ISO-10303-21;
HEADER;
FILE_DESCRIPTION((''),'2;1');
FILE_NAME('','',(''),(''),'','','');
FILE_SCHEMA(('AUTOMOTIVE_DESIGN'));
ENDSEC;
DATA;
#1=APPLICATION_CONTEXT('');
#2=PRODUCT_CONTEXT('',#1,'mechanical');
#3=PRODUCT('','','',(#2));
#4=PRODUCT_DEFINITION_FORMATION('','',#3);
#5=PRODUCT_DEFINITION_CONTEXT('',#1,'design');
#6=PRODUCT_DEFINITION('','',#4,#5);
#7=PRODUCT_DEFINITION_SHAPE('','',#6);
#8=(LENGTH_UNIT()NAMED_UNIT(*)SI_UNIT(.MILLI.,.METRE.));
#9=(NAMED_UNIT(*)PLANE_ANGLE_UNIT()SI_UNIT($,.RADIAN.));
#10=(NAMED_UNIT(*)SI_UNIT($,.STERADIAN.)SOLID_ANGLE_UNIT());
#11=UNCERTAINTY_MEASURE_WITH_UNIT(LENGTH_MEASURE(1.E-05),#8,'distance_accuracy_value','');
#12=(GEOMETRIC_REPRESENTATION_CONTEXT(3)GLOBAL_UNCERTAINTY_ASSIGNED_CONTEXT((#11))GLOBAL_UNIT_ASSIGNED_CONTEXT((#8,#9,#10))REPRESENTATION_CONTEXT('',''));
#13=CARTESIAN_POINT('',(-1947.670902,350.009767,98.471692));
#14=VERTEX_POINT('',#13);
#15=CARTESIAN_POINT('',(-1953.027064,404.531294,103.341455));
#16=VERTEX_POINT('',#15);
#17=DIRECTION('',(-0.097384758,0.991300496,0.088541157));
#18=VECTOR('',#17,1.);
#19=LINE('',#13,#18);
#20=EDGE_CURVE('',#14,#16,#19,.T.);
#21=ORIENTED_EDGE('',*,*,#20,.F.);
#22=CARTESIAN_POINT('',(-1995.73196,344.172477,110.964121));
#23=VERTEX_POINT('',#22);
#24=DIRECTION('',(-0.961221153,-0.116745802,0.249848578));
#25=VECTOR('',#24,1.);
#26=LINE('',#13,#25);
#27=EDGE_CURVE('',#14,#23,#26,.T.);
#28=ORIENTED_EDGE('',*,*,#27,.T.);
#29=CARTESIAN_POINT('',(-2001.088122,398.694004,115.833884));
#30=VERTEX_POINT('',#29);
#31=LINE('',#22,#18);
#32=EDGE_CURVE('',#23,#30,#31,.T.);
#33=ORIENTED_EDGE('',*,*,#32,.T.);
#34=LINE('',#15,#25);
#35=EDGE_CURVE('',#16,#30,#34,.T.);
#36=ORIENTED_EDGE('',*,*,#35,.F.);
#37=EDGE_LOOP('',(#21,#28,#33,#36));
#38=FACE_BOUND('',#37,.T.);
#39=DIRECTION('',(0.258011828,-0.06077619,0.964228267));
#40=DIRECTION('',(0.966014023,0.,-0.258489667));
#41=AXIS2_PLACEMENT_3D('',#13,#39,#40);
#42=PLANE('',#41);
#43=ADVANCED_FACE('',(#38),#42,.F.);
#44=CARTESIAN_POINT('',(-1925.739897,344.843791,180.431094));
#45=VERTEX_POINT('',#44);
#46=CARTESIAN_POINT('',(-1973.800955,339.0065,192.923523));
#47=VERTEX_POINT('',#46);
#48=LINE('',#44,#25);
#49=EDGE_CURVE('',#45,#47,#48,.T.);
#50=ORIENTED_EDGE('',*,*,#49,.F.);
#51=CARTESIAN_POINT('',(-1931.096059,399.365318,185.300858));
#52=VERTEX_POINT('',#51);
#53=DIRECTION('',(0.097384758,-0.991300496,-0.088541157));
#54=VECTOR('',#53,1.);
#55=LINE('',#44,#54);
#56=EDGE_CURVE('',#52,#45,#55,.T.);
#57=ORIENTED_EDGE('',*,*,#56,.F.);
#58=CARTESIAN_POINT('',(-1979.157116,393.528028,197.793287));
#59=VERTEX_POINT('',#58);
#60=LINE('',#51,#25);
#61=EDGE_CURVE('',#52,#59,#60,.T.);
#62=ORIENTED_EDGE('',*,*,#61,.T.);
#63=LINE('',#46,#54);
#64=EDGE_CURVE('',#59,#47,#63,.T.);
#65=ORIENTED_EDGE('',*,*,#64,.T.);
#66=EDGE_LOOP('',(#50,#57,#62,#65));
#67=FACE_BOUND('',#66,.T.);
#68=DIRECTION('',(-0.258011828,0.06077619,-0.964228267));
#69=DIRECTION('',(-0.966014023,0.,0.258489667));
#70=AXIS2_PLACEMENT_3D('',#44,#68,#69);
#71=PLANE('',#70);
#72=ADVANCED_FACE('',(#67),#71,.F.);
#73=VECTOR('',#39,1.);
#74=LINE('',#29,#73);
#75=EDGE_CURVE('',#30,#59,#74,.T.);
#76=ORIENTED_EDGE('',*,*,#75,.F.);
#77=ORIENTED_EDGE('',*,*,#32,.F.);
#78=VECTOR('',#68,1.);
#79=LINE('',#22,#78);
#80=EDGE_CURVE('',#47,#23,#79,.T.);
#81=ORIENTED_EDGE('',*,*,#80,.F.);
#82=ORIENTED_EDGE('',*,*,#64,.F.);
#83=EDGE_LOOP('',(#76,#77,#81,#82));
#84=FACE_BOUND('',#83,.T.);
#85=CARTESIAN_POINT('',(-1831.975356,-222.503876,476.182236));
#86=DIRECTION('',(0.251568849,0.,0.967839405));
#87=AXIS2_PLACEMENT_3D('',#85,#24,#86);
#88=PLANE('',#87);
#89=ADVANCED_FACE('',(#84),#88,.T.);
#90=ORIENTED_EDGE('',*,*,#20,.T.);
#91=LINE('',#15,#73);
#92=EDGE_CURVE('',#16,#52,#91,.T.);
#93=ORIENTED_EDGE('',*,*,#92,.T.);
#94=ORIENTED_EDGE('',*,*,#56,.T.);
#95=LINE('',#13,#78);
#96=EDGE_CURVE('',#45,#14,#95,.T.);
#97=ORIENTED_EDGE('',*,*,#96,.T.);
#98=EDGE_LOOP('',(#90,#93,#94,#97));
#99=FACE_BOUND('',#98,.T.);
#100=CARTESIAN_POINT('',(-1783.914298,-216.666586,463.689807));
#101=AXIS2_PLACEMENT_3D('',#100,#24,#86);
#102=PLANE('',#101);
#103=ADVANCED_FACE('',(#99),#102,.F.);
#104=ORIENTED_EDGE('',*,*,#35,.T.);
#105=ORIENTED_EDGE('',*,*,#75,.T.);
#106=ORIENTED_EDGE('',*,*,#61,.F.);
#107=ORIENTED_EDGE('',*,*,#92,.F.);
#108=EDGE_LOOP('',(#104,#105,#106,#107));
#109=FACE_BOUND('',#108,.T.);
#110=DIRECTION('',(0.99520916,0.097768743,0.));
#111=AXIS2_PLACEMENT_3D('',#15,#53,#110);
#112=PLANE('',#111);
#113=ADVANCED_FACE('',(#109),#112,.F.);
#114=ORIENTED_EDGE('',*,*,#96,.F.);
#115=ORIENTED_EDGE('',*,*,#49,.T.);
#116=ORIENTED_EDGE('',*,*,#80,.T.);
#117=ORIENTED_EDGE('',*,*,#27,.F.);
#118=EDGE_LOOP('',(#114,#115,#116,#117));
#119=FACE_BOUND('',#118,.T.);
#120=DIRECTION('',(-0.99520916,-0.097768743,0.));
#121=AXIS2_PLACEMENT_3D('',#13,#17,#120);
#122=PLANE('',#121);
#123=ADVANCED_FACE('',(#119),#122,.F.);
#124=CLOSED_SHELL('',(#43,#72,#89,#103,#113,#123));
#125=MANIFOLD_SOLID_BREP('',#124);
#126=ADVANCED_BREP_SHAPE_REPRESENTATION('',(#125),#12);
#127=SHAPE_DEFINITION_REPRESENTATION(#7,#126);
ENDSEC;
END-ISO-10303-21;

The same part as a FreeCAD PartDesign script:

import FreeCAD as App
import Part
import Sketcher

V = App.Vector


def add_polygon(sketch, points):
    """Adds a closed chain of lines whose ends are joined by coincident constraints."""
    first, n = sketch.GeometryCount, len(points)
    for a, b in zip(points, points[1:] + points[:1]):
        sketch.addGeometry(Part.LineSegment(App.Vector(*a, 0), App.Vector(*b, 0)), False)
    for i in range(n):
        sketch.addConstraint(Sketcher.Constraint("Coincident", first + i, 2, first + (i + 1) % n, 1))

doc = App.newDocument("Part")
body = doc.addObject("PartDesign::Body", "Body")

# Sketch on an angled plane
sketch1 = body.newObject("Sketcher::SketchObject", "Sketch")
sketch1.Placement = App.Placement(V(-1970.034425, 250.688482, 166.146145), App.Rotation(V(0.097384758, -0.991300496, -0.088541157), V(-0.258011828, 0.06077619, -0.964228267), V(0.961221153, 0.116745802, -0.249848578), "ZXY"))
add_polygon(sketch1, [(-145, 66), (-145, -19), (-90, -19), (-90, 66)])  # lines 0-3
sketch1.addConstraint([
    Sketcher.Constraint("Vertical", 0),
    Sketcher.Constraint("Horizontal", 1),
    Sketcher.Constraint("Vertical", 2),
    Sketcher.Constraint("Horizontal", 3),
    Sketcher.Constraint("DistanceX", 1, 1, 1, 2, 55.0),
    Sketcher.Constraint("DistanceY", 0, 2, 0, 1, 85.0),
    Sketcher.Constraint("DistanceX", 0, 2, -1, 1, 145.287398),
    Sketcher.Constraint("DistanceY", 0, 2, -1, 1, 19.480064),
])
pad1 = body.newObject("PartDesign::Pad", "Pad")
pad1.Profile = sketch1
pad1.Length = 50

doc.recompute()
